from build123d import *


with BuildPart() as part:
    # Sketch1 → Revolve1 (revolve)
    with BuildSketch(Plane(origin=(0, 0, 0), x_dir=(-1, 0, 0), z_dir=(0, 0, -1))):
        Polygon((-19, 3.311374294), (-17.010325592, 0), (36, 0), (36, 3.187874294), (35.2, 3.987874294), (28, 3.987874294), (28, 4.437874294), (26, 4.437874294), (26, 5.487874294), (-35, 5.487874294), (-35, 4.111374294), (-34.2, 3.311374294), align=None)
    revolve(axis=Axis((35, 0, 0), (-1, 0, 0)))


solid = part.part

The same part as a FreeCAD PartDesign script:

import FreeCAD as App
import Part
import Sketcher
from FreeCAD import Vector
Q = App.Units.Quantity


def add_polygon(sketch, points):
    """Adds a closed chain of lines whose ends are joined by coincident constraints."""
    first, n = sketch.GeometryCount, len(points)
    for a, b in zip(points, points[1:] + points[:1]):
        sketch.addGeometry(Part.LineSegment(App.Vector(*a, 0), App.Vector(*b, 0)), False)
    for i in range(n):
        sketch.addConstraint(Sketcher.Constraint("Coincident", first + i, 2, first + (i + 1) % n, 1))

doc = App.newDocument("Part")
params = doc.addObject("Spreadsheet::Sheet", "Params")
for row, (alias, value) in enumerate([
    ("sketch1_width", "2 mm"),
    ("sketch1_width2", "61 mm"),
    ("sketch1_width3", "7.2 mm"),
    ("sketch1_width4", "15.2 mm"),
    ("sketch1_height", "0.45 mm"),
    ("revolution_angle", "360 deg"),
], start=1):
    params.set(f"A{row}", alias)
    params.set(f"B{row}", "=" + value)
    params.setAlias(f"B{row}", alias)

body = doc.addObject("PartDesign::Body", "Body")

# Sketch on XY plane
sketch1 = body.newObject("Sketcher::SketchObject", "Sketch")
sketch1.AttachmentSupport = (doc.getObject("XY_Plane"), [""])
sketch1.MapMode = "FlatFace"
add_polygon(sketch1, [(19, 3.31), (17.01, 0), (-36, 0), (-36, 3.19), (-35.2, 3.99), (-28, 3.99), (-28, 4.44), (-26, 4.44), (-26, 5.49), (35, 5.49), (35, 4.11), (34.2, 3.31)])  # lines 0-11
sketch1.addConstraint(Sketcher.Constraint("Horizontal", 1))
sketch1.addConstraint(Sketcher.Constraint("Vertical", 2))
sketch1.addConstraint(Sketcher.Constraint("Horizontal", 4))
sketch1.addConstraint(Sketcher.Constraint("Vertical", 5))
sketch1.addConstraint(Sketcher.Constraint("Horizontal", 6))
sketch1.addConstraint(Sketcher.Constraint("Vertical", 7))
sketch1.addConstraint(Sketcher.Constraint("Horizontal", 8))
sketch1.addConstraint(Sketcher.Constraint("Vertical", 9))
sketch1.addConstraint(Sketcher.Constraint("Horizontal", 11))
sketch1.addConstraint(Sketcher.Constraint("PointOnObject", 0, 2, -1))
sketch1.addConstraint(Sketcher.Constraint("Parallel", 3, 10))
sketch1.addConstraint(Sketcher.Constraint("Equal", 3, 10))
sketch1.addConstraint(Sketcher.Constraint("DistanceX", 6, 1, 6, 2, 2.0))
sketch1.addConstraint(Sketcher.Constraint("DistanceX", 8, 1, 8, 2, 61.0))
sketch1.addConstraint(Sketcher.Constraint("Angle", 0, Q("-121 deg")))
sketch1.addConstraint(Sketcher.Constraint("Angle", 3, Q("45 deg")))
sketch1.addConstraint(Sketcher.Constraint("DistanceX", 4, 1, 4, 2, 7.2))
sketch1.addConstraint(Sketcher.Constraint("DistanceX", 11, 2, 11, 1, 15.2))
sketch1.addConstraint(Sketcher.Constraint("DistanceX", 1, 2, -1, 1, 36.0))
sketch1.addConstraint(Sketcher.Constraint("DistanceX", 4, 2, -1, 1, 28.0))
sketch1.addConstraint(Sketcher.Constraint("DistanceY", 5, 1, 5, 2, 0.45))
sketch1.addConstraint(Sketcher.Constraint("DistanceY", 7, 1, 7, 2, 1.05))
sketch1.addConstraint(Sketcher.Constraint("DistanceY", 9, 2, 9, 1, 1.3765))
sketch1.addConstraint(Sketcher.Constraint("Distance", 0, 3.86316))
sketch1.setExpression("Constraints[24]", "Params.sketch1_width")
sketch1.setExpression("Constraints[25]", "Params.sketch1_width2")
sketch1.setExpression("Constraints[28]", "Params.sketch1_width3")
sketch1.setExpression("Constraints[29]", "Params.sketch1_width4")
sketch1.setExpression("Constraints[32]", "Params.sketch1_height")
revolution = body.newObject("PartDesign::Revolution", "Revolution")
revolution.Profile = sketch1
revolution.ReferenceAxis = (sketch1, ["H_Axis"])
revolution.setExpression("Angle", "Params.revolution_angle")

doc.recompute()
